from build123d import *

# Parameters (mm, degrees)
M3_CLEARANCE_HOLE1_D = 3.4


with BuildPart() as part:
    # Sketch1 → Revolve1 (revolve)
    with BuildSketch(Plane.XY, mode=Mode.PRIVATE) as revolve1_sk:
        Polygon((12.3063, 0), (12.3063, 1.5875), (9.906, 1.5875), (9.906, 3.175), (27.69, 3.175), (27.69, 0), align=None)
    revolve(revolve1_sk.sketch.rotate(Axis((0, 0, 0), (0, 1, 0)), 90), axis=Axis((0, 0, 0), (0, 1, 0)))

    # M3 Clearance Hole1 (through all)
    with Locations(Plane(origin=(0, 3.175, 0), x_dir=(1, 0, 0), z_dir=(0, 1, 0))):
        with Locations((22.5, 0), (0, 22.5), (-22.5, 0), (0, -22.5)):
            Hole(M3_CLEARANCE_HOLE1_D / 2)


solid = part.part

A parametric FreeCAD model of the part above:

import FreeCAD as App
import Part
import Sketcher
Q = App.Units.Quantity

doc = App.newDocument("Part")
body = doc.addObject("PartDesign::Body", "Body")

# Sketch on XY plane
sketch1 = body.newObject("Sketcher::SketchObject", "Sketch")
sketch1.AttachmentSupport = (doc.getObject("XY_Plane"), [""])
sketch1.MapMode = "FlatFace"
sketch1.addGeometry([
    Part.LineSegment(App.Vector(12.3063, 1.5875, 0), App.Vector(12.3063, 0, 0)),  # 0
    Part.LineSegment(App.Vector(12.3063, 0, 0), App.Vector(27.69, 0, 0)),  # 1
    Part.LineSegment(App.Vector(27.69, 0, 0), App.Vector(27.69, 3.175, 0)),  # 2
    Part.LineSegment(App.Vector(27.69, 3.175, 0), App.Vector(9.906, 3.175, 0)),  # 3
    Part.LineSegment(App.Vector(9.906, 3.175, 0), App.Vector(9.906, 1.5875, 0)),  # 4
    Part.LineSegment(App.Vector(9.906, 1.5875, 0), App.Vector(12.3063, 1.5875, 0)),  # 5
], False)
sketch1.addConstraint([
    Sketcher.Constraint("Coincident", 0, 2, 1, 1),
    Sketcher.Constraint("Coincident", 1, 2, 2, 1),
    Sketcher.Constraint("Coincident", 2, 2, 3, 1),
    Sketcher.Constraint("Coincident", 3, 2, 4, 1),
    Sketcher.Constraint("Coincident", 4, 2, 5, 1),
    Sketcher.Constraint("Coincident", 5, 2, 0, 1),
    Sketcher.Constraint("Vertical", 0),
    Sketcher.Constraint("Horizontal", 1),
    Sketcher.Constraint("Vertical", 2),
    Sketcher.Constraint("Horizontal", 3),
    Sketcher.Constraint("Vertical", 4),
    Sketcher.Constraint("Horizontal", 5),
    Sketcher.Constraint("PointOnObject", 0, 2, -1),
    Sketcher.Constraint("Equal", 0, 4),
    Sketcher.Constraint("DistanceY", 0, 2, 0, 1, Q("0.0625 in")),
    Sketcher.Constraint("DistanceX", -1, 1, 3, 2, Q("0.39 in")),
    Sketcher.Constraint("DistanceX", 5, 1, 5, 2, Q("0.0945 in")),
    Sketcher.Constraint("DistanceX", 1, 1, 1, 2, 15.3837),
])
revolution = body.newObject("PartDesign::Revolution", "Revolution")
revolution.Profile = sketch1
revolution.ReferenceAxis = (sketch1, ["V_Axis"])
revolution.Angle = 360

# Sketch on XZ plane
sketch2 = body.newObject("Sketcher::SketchObject", "Sketch001")
sketch2.AttachmentSupport = (doc.getObject("XZ_Plane"), [""])
sketch2.MapMode = "FlatFace"
sketch2.AttachmentOffset = App.Placement(App.Vector(0, 0, -0.125 * 25.4), App.Rotation())
sketch2.addGeometry([
    Part.Circle(App.Vector(22.5, 0, 0), App.Vector(0, 0, 1), 1.7),
    Part.Circle(App.Vector(0, -22.5, 0), App.Vector(0, 0, 1), 1.7),
    Part.Circle(App.Vector(-22.5, 0, 0), App.Vector(0, 0, 1), 1.7),
    Part.Circle(App.Vector(0, 22.5, 0), App.Vector(0, 0, 1), 1.7),
], False)
sketch2.addConstraint([
    Sketcher.Constraint("Equal", 0, 1),
    Sketcher.Constraint("Equal", 1, 2),
    Sketcher.Constraint("Equal", 2, 3),
    Sketcher.Constraint("Symmetric", 0, 3, 2, 3, -1, 1),
    Sketcher.Constraint("Symmetric", 1, 3, 3, 3, -1, 1),
    Sketcher.Constraint("PointOnObject", 0, 3, -1),
    Sketcher.Constraint("PointOnObject", 1, 3, -2),
    Sketcher.Constraint("Diameter", 0, 3.4),
    Sketcher.Constraint("DistanceX", -1, 1, 0, 3, 22.5),
    Sketcher.Constraint("DistanceY", 1, 3, -1, 1, 22.5),
])
doc.recompute()
hole = body.newObject("PartDesign::Hole", "Hole")
hole.Profile = sketch2
hole.ThreadType = "None"
hole.Diameter = 3.4
hole.DepthType = "ThroughAll"
hole.Reversed = True

doc.recompute()
